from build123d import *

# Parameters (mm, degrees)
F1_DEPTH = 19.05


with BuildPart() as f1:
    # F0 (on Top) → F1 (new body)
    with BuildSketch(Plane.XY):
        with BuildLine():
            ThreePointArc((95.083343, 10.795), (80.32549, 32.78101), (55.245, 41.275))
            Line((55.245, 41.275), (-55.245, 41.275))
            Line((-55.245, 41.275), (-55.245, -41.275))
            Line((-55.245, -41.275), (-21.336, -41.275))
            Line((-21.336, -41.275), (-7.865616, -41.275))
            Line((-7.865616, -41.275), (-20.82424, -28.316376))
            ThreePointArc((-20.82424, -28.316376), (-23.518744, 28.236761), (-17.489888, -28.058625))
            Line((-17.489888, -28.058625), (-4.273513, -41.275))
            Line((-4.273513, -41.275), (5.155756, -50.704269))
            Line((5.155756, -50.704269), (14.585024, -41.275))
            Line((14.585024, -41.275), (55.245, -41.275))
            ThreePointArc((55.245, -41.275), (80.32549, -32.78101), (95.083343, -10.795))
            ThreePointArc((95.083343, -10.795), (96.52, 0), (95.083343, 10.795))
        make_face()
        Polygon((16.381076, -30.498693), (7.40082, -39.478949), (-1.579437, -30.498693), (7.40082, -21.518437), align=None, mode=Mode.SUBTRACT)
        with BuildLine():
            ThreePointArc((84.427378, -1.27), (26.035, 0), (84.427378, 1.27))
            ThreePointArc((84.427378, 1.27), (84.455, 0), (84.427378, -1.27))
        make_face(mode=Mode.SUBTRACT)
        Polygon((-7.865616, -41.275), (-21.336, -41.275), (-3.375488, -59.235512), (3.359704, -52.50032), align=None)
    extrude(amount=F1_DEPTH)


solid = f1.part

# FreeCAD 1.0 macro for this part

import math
import FreeCAD as App
import Part
import Sketcher
Q = App.Units.Quantity


def add_polygon(sketch, points):
    """Adds a closed chain of lines whose ends are joined by coincident constraints."""
    first, n = sketch.GeometryCount, len(points)
    for a, b in zip(points, points[1:] + points[:1]):
        sketch.addGeometry(Part.LineSegment(App.Vector(*a, 0), App.Vector(*b, 0)), False)
    for i in range(n):
        sketch.addConstraint(Sketcher.Constraint("Coincident", first + i, 2, first + (i + 1) % n, 1))

doc = App.newDocument("Part")
body = doc.addObject("PartDesign::Body", "Body")

sketch1 = body.newObject("Sketcher::SketchObject", "Sketch")
sketch1.AttachmentSupport = (doc.getObject("XY_Plane"), [""])
sketch1.MapMode = "FlatFace"
sketch1.addGeometry(Part.ArcOfCircle(Part.Circle(App.Vector(55.244999, -0.000001, 0), App.Vector(0, 0, 1), 41.275001), math.radians(15.161369), math.radians(89.999999)), False)
sketch1.addGeometry(Part.LineSegment(App.Vector(55.245, 41.275, 0), App.Vector(-55.245, 41.275, 0)), False)
sketch1.addGeometry(Part.LineSegment(App.Vector(-55.245, 41.275, 0), App.Vector(-55.245, -41.275, 0)), False)
sketch1.addGeometry(Part.LineSegment(App.Vector(-55.245, -41.275, 0), App.Vector(-21.336, -41.275, 0)), False)
sketch1.addGeometry(Part.LineSegment(App.Vector(-21.336, -41.275, 0), App.Vector(-3.375488, -59.235512, 0)), False)
sketch1.addGeometry(Part.LineSegment(App.Vector(-3.375488, -59.235512, 0), App.Vector(3.359704, -52.50032, 0)), False)
sketch1.addGeometry(Part.LineSegment(App.Vector(3.359704, -52.50032, 0), App.Vector(-20.82424, -28.316376, 0)), False)
sketch1.addGeometry(Part.ArcOfCircle(Part.Circle(App.Vector(-21.336005, 0, 0), App.Vector(0, 0, 1), 28.321), math.radians(-82.194862), math.radians(271.0354)), False)
sketch1.addGeometry(Part.LineSegment(App.Vector(-17.489888, -28.058625, 0), App.Vector(5.155756, -50.704269, 0)), False)
sketch1.addGeometry(Part.LineSegment(App.Vector(5.155756, -50.704269, 0), App.Vector(14.585024, -41.275, 0)), False)
sketch1.addGeometry(Part.LineSegment(App.Vector(14.585024, -41.275, 0), App.Vector(55.245, -41.275, 0)), False)
sketch1.addGeometry(Part.ArcOfCircle(Part.Circle(App.Vector(55.244999, 0.000001, 0), App.Vector(0, 0, 1), 41.275001), math.radians(-89.999999), math.radians(-15.161369)), False)
sketch1.addGeometry(Part.ArcOfCircle(Part.Circle(App.Vector(55.245009, 0, 0), App.Vector(0, 0, 1), 41.274991), math.radians(-15.161372), math.radians(15.161372)), False)
add_polygon(sketch1, [(7.40082, -21.518437), (16.381076, -30.498693), (7.40082, -39.478949), (-1.579437, -30.498693)])
sketch1.addGeometry(Part.ArcOfCircle(Part.Circle(App.Vector(55.245258, 0, 0), App.Vector(0, 0, 1), 29.209742), math.radians(-2.491928), math.radians(2.491928)), False)
sketch1.addGeometry(Part.ArcOfCircle(Part.Circle(App.Vector(55.245, 0, 0), App.Vector(0, 0, 1), 29.21), math.radians(2.491906), math.radians(357.508094)), False)
sketch1.addConstraint([
    Sketcher.Constraint("Coincident", 0, 2, 1, 1),
    Sketcher.Constraint("Coincident", 1, 2, 2, 1),
    Sketcher.Constraint("Coincident", 2, 2, 3, 1),
    Sketcher.Constraint("Coincident", 3, 2, 4, 1),
    Sketcher.Constraint("Coincident", 4, 2, 5, 1),
    Sketcher.Constraint("Coincident", 5, 2, 6, 1),
    Sketcher.Constraint("Coincident", 6, 2, 7, 2),
    Sketcher.Constraint("Coincident", 7, 1, 8, 1),
    Sketcher.Constraint("Coincident", 8, 2, 9, 1),
    Sketcher.Constraint("Coincident", 9, 2, 10, 1),
    Sketcher.Constraint("Coincident", 10, 2, 11, 1),
    Sketcher.Constraint("Coincident", 11, 2, 12, 1),
    Sketcher.Constraint("Coincident", 12, 2, 0, 1),
    Sketcher.Constraint("Coincident", 17, 1, 18, 2),
    Sketcher.Constraint("Coincident", 18, 1, 17, 2),
    Sketcher.Constraint("Horizontal", 1),
    Sketcher.Constraint("Vertical", 2),
    Sketcher.Constraint("Horizontal", 3),
    Sketcher.Constraint("Horizontal", 10),
    Sketcher.Constraint("Coincident", 11, 3, 0, 3),
    Sketcher.Constraint("Coincident", 18, 3, 0, 3),
    Sketcher.Constraint("PointOnObject", 0, 3, -1),
    Sketcher.Constraint("PointOnObject", 7, 3, -1),
    Sketcher.Constraint("PointOnObject", 12, 3, -1),
    Sketcher.Constraint("Radius", 18, Q("1.15 in")),
    Sketcher.Constraint("Distance", 4, Q("1 in")),
    Sketcher.Constraint("Radius", 0, Q("1.625 in")),
    Sketcher.Constraint("Radius", 7, Q("1.115 in")),
    Sketcher.Constraint("Distance", 13, Q("0.5 in")),
    Sketcher.Constraint("Distance", 14, Q("0.5 in")),
    Sketcher.Constraint("Distance", 15, Q("0.5 in")),
    Sketcher.Constraint("Distance", 16, Q("0.5 in")),
    Sketcher.Constraint("DistanceX", 1, 2, 1, 1, Q("4.35 in")),
    Sketcher.Constraint("DistanceY", 2, 2, 2, 1, Q("3.25 in")),
    Sketcher.Constraint("DistanceY", 17, 1, 18, 1, Q("0.1 in")),
    Sketcher.Constraint("DistanceX", 3, 1, 3, 2, Q("1.335 in")),
    Sketcher.Constraint("DistanceX", 7, 3, -1, 1, Q("0.8400002 in")),
    Sketcher.Constraint("DistanceX", 3, 2, -1, 1, Q("0.84 in")),
    Sketcher.Constraint("DistanceY", 17, 1, -1, 1, Q("0.05 in")),
    Sketcher.Constraint("DistanceX", 1, 2, 11, 3, Q("4.35 in")),
    Sketcher.Constraint("DistanceY", 11, 2, 12, 2, Q("0.85 in")),
    Sketcher.Constraint("Distance", 5, Q("0.375 in")),
    Sketcher.Constraint("Distance", 9, Q("0.525 in")),
    Sketcher.Constraint("DistanceX", -1, 1, 10, 2, Q("2.175 in")),
    Sketcher.Constraint("DistanceY", 11, 2, -1, 1, Q("0.425 in")),
    Sketcher.Constraint("Radius", 12, 41.274991),
    Sketcher.Constraint("Radius", 17, 29.209742),
    Sketcher.Constraint("DistanceX", 7, 1, 4, 2, 14.1144),
    Sketcher.Constraint("Distance", 6, 34.201262),
    Sketcher.Constraint("DistanceX", 10, 1, 10, 2, 40.659976),
    Sketcher.Constraint("DistanceY", 5, 2, -1, 1, 52.50032),
    Sketcher.Constraint("DistanceX", 6, 2, -1, 1, 20.82424),
    Sketcher.Constraint("DistanceY", 8, 2, -1, 1, 50.704269),
    Sketcher.Constraint("DistanceX", -1, 1, 14, 2, 7.40082),
    Sketcher.Constraint("DistanceY", 14, 2, -1, 1, 39.478949),
    Sketcher.Constraint("DistanceX", -1, 1, 16, 2, 7.40082),
    Sketcher.Constraint("DistanceX", 9, 2, 13, 2, 1.796052),
])
pad1 = body.newObject("PartDesign::Pad", "Pad")
pad1.Profile = sketch1
pad1.Length = Q("0.75 in")

doc.recompute()
